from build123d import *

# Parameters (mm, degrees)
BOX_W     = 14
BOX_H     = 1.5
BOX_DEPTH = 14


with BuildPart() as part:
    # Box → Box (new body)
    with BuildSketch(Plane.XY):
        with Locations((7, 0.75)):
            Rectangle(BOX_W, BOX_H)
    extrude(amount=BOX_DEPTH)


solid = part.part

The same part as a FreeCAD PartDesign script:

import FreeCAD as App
import Part
import Sketcher
Q = App.Units.Quantity

doc = App.newDocument("Part")
body = doc.addObject("PartDesign::Body", "Body")

sketch1 = body.newObject("Sketcher::SketchObject", "Sketch")
sketch1.AttachmentSupport = (doc.getObject("XY_Plane"), [""])
sketch1.MapMode = "FlatFace"
sketch1.addGeometry([
    Part.LineSegment(App.Vector(0, 1.5, 0), App.Vector(0, 0, 0)),
    Part.LineSegment(App.Vector(0, 0, 0), App.Vector(14, 0, 0)),
    Part.LineSegment(App.Vector(14, 0, 0), App.Vector(14, 1.5, 0)),
    Part.LineSegment(App.Vector(14, 1.5, 0), App.Vector(0, 1.5, 0)),
], False)
sketch1.addConstraint([
    Sketcher.Constraint("Coincident", 0, 2, 1, 1),
    Sketcher.Constraint("Coincident", 1, 2, 2, 1),
    Sketcher.Constraint("Coincident", 2, 2, 3, 1),
    Sketcher.Constraint("Coincident", 3, 2, 0, 1),
    Sketcher.Constraint("Vertical", 0),
    Sketcher.Constraint("Horizontal", 1),
    Sketcher.Constraint("Vertical", 2),
    Sketcher.Constraint("Horizontal", 3),
    Sketcher.Constraint("Coincident", 0, 2, -1, 1),
    Sketcher.Constraint("DistanceX", 1, 1, 1, 2, Q("14 mm")),
    Sketcher.Constraint("DistanceY", 0, 2, 0, 1, Q("1.5 mm")),
])
pad1 = body.newObject("PartDesign::Pad", "Pad")
pad1.Profile = sketch1
pad1.Length = 14

doc.recompute()
